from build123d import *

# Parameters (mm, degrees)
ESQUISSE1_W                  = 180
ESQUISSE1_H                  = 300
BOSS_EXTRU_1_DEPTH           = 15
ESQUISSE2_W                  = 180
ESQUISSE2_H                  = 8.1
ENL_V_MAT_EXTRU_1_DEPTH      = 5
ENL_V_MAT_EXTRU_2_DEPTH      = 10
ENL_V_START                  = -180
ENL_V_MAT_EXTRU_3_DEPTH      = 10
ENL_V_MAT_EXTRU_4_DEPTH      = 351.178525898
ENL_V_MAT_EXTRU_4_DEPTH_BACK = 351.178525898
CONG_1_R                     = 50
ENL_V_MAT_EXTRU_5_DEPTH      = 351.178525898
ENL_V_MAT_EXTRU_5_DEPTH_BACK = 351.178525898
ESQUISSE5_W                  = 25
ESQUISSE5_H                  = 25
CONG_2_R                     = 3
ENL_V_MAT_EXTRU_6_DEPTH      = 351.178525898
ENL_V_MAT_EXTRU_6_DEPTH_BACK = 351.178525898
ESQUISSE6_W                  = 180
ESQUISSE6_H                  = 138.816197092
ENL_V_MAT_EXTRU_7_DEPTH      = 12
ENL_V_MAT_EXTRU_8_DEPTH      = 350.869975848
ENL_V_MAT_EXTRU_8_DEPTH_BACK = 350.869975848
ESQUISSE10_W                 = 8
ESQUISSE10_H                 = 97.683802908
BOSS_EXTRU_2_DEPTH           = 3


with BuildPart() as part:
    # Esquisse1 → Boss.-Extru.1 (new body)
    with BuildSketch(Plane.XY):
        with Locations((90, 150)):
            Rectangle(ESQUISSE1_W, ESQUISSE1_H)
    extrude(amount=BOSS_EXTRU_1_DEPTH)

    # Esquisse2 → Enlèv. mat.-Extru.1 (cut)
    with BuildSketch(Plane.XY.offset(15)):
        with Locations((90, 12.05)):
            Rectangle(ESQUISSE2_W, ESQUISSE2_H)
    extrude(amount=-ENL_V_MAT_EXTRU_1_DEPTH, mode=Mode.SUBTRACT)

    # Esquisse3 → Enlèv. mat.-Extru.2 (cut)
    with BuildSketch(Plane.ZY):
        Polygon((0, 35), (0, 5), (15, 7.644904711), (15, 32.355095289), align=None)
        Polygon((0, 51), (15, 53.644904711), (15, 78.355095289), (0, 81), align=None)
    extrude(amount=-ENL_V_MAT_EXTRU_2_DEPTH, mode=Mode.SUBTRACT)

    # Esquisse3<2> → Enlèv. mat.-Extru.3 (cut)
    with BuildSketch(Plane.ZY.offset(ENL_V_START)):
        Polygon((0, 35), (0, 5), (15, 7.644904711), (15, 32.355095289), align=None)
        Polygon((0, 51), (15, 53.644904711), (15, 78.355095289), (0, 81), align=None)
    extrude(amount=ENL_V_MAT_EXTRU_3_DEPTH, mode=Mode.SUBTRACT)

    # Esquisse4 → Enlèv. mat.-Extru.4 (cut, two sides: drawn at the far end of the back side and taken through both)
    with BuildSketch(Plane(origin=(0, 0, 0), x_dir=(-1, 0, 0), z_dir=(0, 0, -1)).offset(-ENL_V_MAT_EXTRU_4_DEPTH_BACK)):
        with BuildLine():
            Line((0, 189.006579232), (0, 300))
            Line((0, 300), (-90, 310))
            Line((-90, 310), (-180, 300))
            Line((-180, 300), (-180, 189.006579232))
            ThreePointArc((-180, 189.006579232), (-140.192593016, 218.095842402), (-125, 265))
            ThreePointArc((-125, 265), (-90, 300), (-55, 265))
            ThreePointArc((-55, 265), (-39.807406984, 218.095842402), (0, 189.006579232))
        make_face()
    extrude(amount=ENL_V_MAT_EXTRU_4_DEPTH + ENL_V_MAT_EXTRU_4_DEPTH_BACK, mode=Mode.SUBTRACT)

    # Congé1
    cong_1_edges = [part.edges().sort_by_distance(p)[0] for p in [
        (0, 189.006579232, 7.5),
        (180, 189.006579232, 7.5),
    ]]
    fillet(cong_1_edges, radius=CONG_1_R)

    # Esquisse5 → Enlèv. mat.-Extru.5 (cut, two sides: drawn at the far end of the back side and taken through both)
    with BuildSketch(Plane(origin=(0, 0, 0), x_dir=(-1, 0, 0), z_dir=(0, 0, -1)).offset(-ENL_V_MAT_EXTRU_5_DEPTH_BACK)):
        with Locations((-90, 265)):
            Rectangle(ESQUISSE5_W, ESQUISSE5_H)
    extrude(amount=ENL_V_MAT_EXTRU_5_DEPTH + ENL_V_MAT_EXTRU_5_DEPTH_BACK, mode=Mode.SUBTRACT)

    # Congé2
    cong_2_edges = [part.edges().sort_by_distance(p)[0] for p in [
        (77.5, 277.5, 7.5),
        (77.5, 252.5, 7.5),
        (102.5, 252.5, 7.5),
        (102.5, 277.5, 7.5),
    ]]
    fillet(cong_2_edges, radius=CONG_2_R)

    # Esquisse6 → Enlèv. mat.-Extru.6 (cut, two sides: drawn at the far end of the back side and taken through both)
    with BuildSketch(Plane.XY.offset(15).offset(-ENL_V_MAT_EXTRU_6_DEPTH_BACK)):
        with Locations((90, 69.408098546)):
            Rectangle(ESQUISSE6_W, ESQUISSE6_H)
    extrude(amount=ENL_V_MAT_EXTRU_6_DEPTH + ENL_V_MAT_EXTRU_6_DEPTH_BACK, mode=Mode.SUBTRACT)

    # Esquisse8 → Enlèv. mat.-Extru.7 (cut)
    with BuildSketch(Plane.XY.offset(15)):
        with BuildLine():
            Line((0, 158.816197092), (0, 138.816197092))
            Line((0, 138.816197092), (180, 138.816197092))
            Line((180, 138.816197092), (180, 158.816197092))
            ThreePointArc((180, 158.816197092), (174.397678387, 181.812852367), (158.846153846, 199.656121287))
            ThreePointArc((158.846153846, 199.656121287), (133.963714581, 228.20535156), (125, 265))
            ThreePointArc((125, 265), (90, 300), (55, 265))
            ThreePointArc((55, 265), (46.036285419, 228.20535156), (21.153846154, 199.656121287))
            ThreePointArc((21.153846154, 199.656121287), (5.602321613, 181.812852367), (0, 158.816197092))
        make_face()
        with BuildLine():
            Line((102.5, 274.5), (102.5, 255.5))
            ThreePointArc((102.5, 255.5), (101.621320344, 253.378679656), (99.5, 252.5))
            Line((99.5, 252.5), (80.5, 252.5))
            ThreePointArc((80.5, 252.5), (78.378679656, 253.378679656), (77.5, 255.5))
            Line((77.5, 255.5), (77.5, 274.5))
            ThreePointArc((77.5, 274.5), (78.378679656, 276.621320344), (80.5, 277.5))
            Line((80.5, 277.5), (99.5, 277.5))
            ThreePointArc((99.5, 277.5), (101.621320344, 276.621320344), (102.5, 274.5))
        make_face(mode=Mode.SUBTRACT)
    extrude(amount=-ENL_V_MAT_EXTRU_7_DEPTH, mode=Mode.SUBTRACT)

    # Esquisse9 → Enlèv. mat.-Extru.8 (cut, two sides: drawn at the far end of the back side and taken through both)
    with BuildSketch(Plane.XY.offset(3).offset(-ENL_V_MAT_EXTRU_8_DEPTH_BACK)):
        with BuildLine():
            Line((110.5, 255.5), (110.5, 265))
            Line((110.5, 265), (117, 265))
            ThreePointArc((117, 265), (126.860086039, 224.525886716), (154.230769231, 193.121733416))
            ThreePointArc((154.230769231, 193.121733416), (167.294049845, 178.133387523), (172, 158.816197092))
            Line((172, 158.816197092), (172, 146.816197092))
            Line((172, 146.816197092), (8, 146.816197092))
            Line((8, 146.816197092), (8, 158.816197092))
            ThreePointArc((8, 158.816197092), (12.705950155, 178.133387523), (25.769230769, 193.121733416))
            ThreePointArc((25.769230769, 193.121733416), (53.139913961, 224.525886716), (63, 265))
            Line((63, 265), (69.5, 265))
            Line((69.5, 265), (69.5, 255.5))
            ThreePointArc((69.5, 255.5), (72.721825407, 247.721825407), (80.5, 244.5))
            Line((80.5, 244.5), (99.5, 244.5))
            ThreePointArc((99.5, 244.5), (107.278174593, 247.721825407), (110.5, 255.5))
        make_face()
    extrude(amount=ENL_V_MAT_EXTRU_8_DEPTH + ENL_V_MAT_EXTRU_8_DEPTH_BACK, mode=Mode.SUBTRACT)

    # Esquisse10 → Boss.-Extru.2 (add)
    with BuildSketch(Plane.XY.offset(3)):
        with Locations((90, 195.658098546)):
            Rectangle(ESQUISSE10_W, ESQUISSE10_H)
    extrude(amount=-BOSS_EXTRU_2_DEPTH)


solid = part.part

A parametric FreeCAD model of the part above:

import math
import FreeCAD as App
import Part
import Sketcher
from FreeCAD import Vector
Q = App.Units.Quantity


def edges_at(feature, points):
    """Names of the edges that pass closest to the given points."""
    edges = feature.Shape.Edges
    near = lambda p: min(range(len(edges)), key=lambda i: edges[i].distToShape(Part.Vertex(*p))[0])
    return sorted({f"Edge{near(p) + 1}" for p in points})


def add_polygon(sketch, points):
    """Adds a closed chain of lines whose ends are joined by coincident constraints."""
    first, n = sketch.GeometryCount, len(points)
    for a, b in zip(points, points[1:] + points[:1]):
        sketch.addGeometry(Part.LineSegment(App.Vector(*a, 0), App.Vector(*b, 0)), False)
    for i in range(n):
        sketch.addConstraint(Sketcher.Constraint("Coincident", first + i, 2, first + (i + 1) % n, 1))

doc = App.newDocument("Part")
body = doc.addObject("PartDesign::Body", "Body")

# Sketch on XY plane
sketch1 = body.newObject("Sketcher::SketchObject", "Sketch")
sketch1.AttachmentSupport = (doc.getObject("XY_Plane"), [""])
sketch1.MapMode = "FlatFace"
add_polygon(sketch1, [(0, 300), (0, 0), (180, 0), (180, 300)])  # lines 0-3
sketch1.addConstraint([
    Sketcher.Constraint("Vertical", 0),
    Sketcher.Constraint("Horizontal", 1),
    Sketcher.Constraint("Vertical", 2),
    Sketcher.Constraint("Horizontal", 3),
    Sketcher.Constraint("Coincident", 0, 2, -1, 1),
    Sketcher.Constraint("DistanceX", 1, 1, 1, 2, Q("180 mm")),
    Sketcher.Constraint("DistanceY", 0, 2, 0, 1, Q("300 mm")),
])
pad1 = body.newObject("PartDesign::Pad", "Pad")
pad1.Profile = sketch1
pad1.Length = 15

# Sketch on XY plane
sketch2 = body.newObject("Sketcher::SketchObject", "Sketch001")
sketch2.AttachmentSupport = (doc.getObject("XY_Plane"), [""])
sketch2.MapMode = "FlatFace"
sketch2.AttachmentOffset = App.Placement(Vector(0, 0, 15), App.Rotation())
add_polygon(sketch2, [(0, 16), (0, 8), (180, 8), (180, 16)])  # lines 0-3
sketch2.addConstraint([
    Sketcher.Constraint("Vertical", 0),
    Sketcher.Constraint("Horizontal", 1),
    Sketcher.Constraint("Vertical", 2),
    Sketcher.Constraint("Horizontal", 3),
    Sketcher.Constraint("PointOnObject", 0, 2, -2),
    Sketcher.Constraint("DistanceX", 1, 1, 1, 2, Q("180 mm")),
    Sketcher.Constraint("DistanceY", 0, 2, 0, 1, Q("8.1 mm")),
    Sketcher.Constraint("DistanceY", -1, 1, 0, 2, Q("8 mm")),
])
pocket1 = body.newObject("PartDesign::Pocket", "Pocket")
pocket1.Profile = sketch2
pocket1.Length = 5

# Sketch on YZ plane
sketch3 = body.newObject("Sketcher::SketchObject", "Sketch002")
sketch3.AttachmentSupport = (doc.getObject("YZ_Plane"), [""])
sketch3.MapMode = "FlatFace"
add_polygon(sketch3, [(35, 0), (5, 0), (8, 15), (32, 15)])  # lines 0-3
add_polygon(sketch3, [(51, 0), (54, 15), (78, 15), (81, 0)])  # lines 4-7
sketch3.addConstraint([
    Sketcher.Constraint("Horizontal", 0),
    Sketcher.Constraint("Horizontal", 2),
    Sketcher.Constraint("Horizontal", 5),
    Sketcher.Constraint("Horizontal", 7),
    Sketcher.Constraint("PointOnObject", 0, 2, -1),
    Sketcher.Constraint("PointOnObject", 6, 2, -1),
    Sketcher.Constraint("Parallel", 1, 4),
    Sketcher.Constraint("Parallel", 3, 6),
    Sketcher.Constraint("Horizontal", 2, 2, 4, 2),
    Sketcher.Constraint("Equal", 2, 5),
    Sketcher.Constraint("Equal", 1, 3),
    Sketcher.Constraint("DistanceX", 0, 2, 0, 1, Q("30 mm")),
    Sketcher.Constraint("Angle", 1, Q("80 deg")),
    Sketcher.Constraint("DistanceX", -1, 1, 0, 2, Q("5 mm")),
    Sketcher.Constraint("DistanceY", -1, 1, 1, 2, Q("15 mm")),
    Sketcher.Constraint("DistanceX", -1, 1, 6, 2, Q("81 mm")),
])
pocket2 = body.newObject("PartDesign::Pocket", "Pocket001")
pocket2.Profile = sketch3
pocket2.Length = 10
pocket2.Reversed = True

# Sketch on YZ plane
sketch4 = body.newObject("Sketcher::SketchObject", "Sketch003")
sketch4.AttachmentSupport = (doc.getObject("YZ_Plane"), [""])
sketch4.MapMode = "FlatFace"
sketch4.AttachmentOffset = App.Placement(Vector(0, 0, 180), App.Rotation())
add_polygon(sketch4, [(35, 0), (5, 0), (8, 15), (32, 15)])  # lines 0-3
add_polygon(sketch4, [(51, 0), (54, 15), (78, 15), (81, 0)])  # lines 4-7
sketch4.addConstraint([
    Sketcher.Constraint("Horizontal", 0),
    Sketcher.Constraint("Horizontal", 2),
    Sketcher.Constraint("Horizontal", 5),
    Sketcher.Constraint("Horizontal", 7),
    Sketcher.Constraint("PointOnObject", 0, 2, -1),
    Sketcher.Constraint("PointOnObject", 6, 2, -1),
    Sketcher.Constraint("Parallel", 1, 4),
    Sketcher.Constraint("Parallel", 3, 6),
    Sketcher.Constraint("Horizontal", 2, 2, 4, 2),
    Sketcher.Constraint("Equal", 2, 5),
    Sketcher.Constraint("Equal", 1, 3),
    Sketcher.Constraint("DistanceX", 0, 2, 0, 1, Q("30 mm")),
    Sketcher.Constraint("Angle", 1, Q("80 deg")),
    Sketcher.Constraint("DistanceX", -1, 1, 0, 2, Q("5 mm")),
    Sketcher.Constraint("DistanceY", -1, 1, 1, 2, Q("15 mm")),
    Sketcher.Constraint("DistanceX", -1, 1, 6, 2, Q("81 mm")),
])
pocket3 = body.newObject("PartDesign::Pocket", "Pocket002")
pocket3.Profile = sketch4
pocket3.Length = 10

# Sketch on XY plane
sketch5 = body.newObject("Sketcher::SketchObject", "Sketch004")
sketch5.AttachmentSupport = (doc.getObject("XY_Plane"), [""])
sketch5.MapMode = "FlatFace"
sketch5.addGeometry([
    Part.LineSegment(Vector(0, 189, 0), Vector(0, 300, 0)),  # 0
    Part.LineSegment(Vector(0, 300, 0), Vector(90, 310, 0)),  # 1
    Part.LineSegment(Vector(90, 310, 0), Vector(180, 300, 0)),  # 2
    Part.LineSegment(Vector(180, 300, 0), Vector(180, 189, 0)),  # 3
    Part.ArcOfCircle(Part.Circle(Vector(205, 265, 0), Vector(0, 0, 1), 80), math.radians(-180), math.radians(-108)),  # 4
    Part.ArcOfCircle(Part.Circle(Vector(90, 265, 0), Vector(0, 0, 1), 35), math.radians(0), math.radians(180)),  # 5
    Part.ArcOfCircle(Part.Circle(Vector(-25, 265, 0), Vector(0, 0, 1), 80), math.radians(-72), math.radians(0)),  # 6
], False)
sketch5.addConstraint([
    Sketcher.Constraint("Coincident", 0, 2, 1, 1),
    Sketcher.Constraint("Coincident", 1, 2, 2, 1),
    Sketcher.Constraint("Coincident", 2, 2, 3, 1),
    Sketcher.Constraint("Coincident", 3, 2, 4, 2),
    Sketcher.Constraint("Tangent", 4, 1, 5, 1),
    Sketcher.Constraint("Tangent", 5, 2, 6, 2),
    Sketcher.Constraint("Coincident", 6, 1, 0, 1),
    Sketcher.Constraint("Vertical", 0),
    Sketcher.Constraint("Vertical", 3),
    Sketcher.Constraint("Equal", 4, 6),
    Sketcher.Constraint("PointOnObject", 0, 2, -2),
    Sketcher.Constraint("Horizontal", 4, 3, 5, 3),
    Sketcher.Constraint("Horizontal", 5, 3, 6, 3),
    Sketcher.Constraint("Horizontal", 0, 2, 2, 2),
    Sketcher.Constraint("Horizontal", 3, 2, 6, 1),
    Sketcher.Constraint("Vertical", 5, 3, 1, 2),
    Sketcher.Constraint("Radius", 4, Q("80 mm")),
    Sketcher.Constraint("Radius", 5, Q("35 mm")),
    Sketcher.Constraint("DistanceX", -1, 1, 4, 3, Q("205 mm")),
    Sketcher.Constraint("DistanceY", -1, 1, 4, 3, Q("265 mm")),
    Sketcher.Constraint("DistanceY", -1, 1, 0, 2, Q("300 mm")),
    Sketcher.Constraint("DistanceY", -1, 1, 1, 2, Q("310 mm")),
])
pocket4 = body.newObject("PartDesign::Pocket", "Pocket003")
pocket4.Profile = sketch5
pocket4.Type = "ThroughAll"
pocket4.Midplane = True
doc.recompute()

fillet = body.newObject("PartDesign::Fillet", "Fillet")
fillet.Base = (pocket4, edges_at(pocket4, [(0, 189.007, 7.5), (180, 189.007, 7.5)]))
fillet.Radius = 50

# Sketch on XY plane
sketch6 = body.newObject("Sketcher::SketchObject", "Sketch005")
sketch6.AttachmentSupport = (doc.getObject("XY_Plane"), [""])
sketch6.MapMode = "FlatFace"
add_polygon(sketch6, [(102, 278), (102, 252), (78, 252), (78, 278)])  # lines 0-3
sketch6.addConstraint([
    Sketcher.Constraint("Vertical", 0),
    Sketcher.Constraint("Horizontal", 1),
    Sketcher.Constraint("Vertical", 2),
    Sketcher.Constraint("Horizontal", 3),
    Sketcher.Constraint("Equal", 3, 0),
    Sketcher.Constraint("DistanceX", 1, 2, 1, 1, Q("25 mm")),
    Sketcher.Constraint("DistanceX", -1, 1, 0, 2, Q("102.5 mm")),
    Sketcher.Constraint("DistanceY", -1, 1, 0, 2, Q("252.5 mm")),
])
pocket5 = body.newObject("PartDesign::Pocket", "Pocket004")
pocket5.Profile = sketch6
pocket5.Type = "ThroughAll"
pocket5.Midplane = True
doc.recompute()

fillet2 = body.newObject("PartDesign::Fillet", "Fillet001")
fillet2.Base = (pocket5, edges_at(pocket5, [
    (77.5, 277.5, 7.5),
    (77.5, 252.5, 7.5),
    (102.5, 252.5, 7.5),
    (102.5, 277.5, 7.5),
]))
fillet2.Radius = 3

# Sketch on XY plane
sketch7 = body.newObject("Sketcher::SketchObject", "Sketch006")
sketch7.AttachmentSupport = (doc.getObject("XY_Plane"), [""])
sketch7.MapMode = "FlatFace"
sketch7.AttachmentOffset = App.Placement(Vector(0, 0, 15), App.Rotation())
add_polygon(sketch7, [(0, 139), (0, 0), (180, 0), (180, 139)])  # lines 0-3
sketch7.addConstraint([
    Sketcher.Constraint("Vertical", 0),
    Sketcher.Constraint("Horizontal", 1),
    Sketcher.Constraint("Vertical", 2),
    Sketcher.Constraint("Horizontal", 3),
    Sketcher.Constraint("Coincident", 0, 2, -1, 1),
    Sketcher.Constraint("DistanceX", 1, 1, 1, 2, Q("180 mm")),
    Sketcher.Constraint("DistanceY", 0, 2, 0, 1, Q("138.816197 mm")),
])
pocket6 = body.newObject("PartDesign::Pocket", "Pocket005")
pocket6.Profile = sketch7
pocket6.Type = "ThroughAll"
pocket6.Midplane = True

# Sketch on XY plane
sketch8 = body.newObject("Sketcher::SketchObject", "Sketch007")
sketch8.AttachmentSupport = (doc.getObject("XY_Plane"), [""])
sketch8.MapMode = "FlatFace"
sketch8.AttachmentOffset = App.Placement(Vector(0, 0, 15), App.Rotation())
sketch8.addGeometry([
    Part.LineSegment(Vector(0, 158.8, 0), Vector(0, 138.8, 0)),  # 0
    Part.LineSegment(Vector(0, 138.8, 0), Vector(180, 138.8, 0)),  # 1
    Part.LineSegment(Vector(180, 138.8, 0), Vector(180, 158.8, 0)),  # 2
    Part.ArcOfCircle(Part.Circle(Vector(130, 158.8, 0), Vector(0, 0, 1), 50), math.radians(0), math.radians(55)),  # 3
    Part.ArcOfCircle(Part.Circle(Vector(205, 265, 0), Vector(0, 0, 1), 80), math.radians(-180), math.radians(-125)),  # 4
    Part.ArcOfCircle(Part.Circle(Vector(90, 265, 0), Vector(0, 0, 1), 35), math.radians(0), math.radians(180)),  # 5
    Part.ArcOfCircle(Part.Circle(Vector(-25, 265, 0), Vector(0, 0, 1), 80), math.radians(-55), math.radians(0)),  # 6
    Part.ArcOfCircle(Part.Circle(Vector(50, 158.8, 0), Vector(0, 0, 1), 50), math.radians(125), math.radians(180)),  # 7
    Part.ArcOfCircle(Part.Circle(Vector(99.5, 274.5, 0), Vector(0, 0, 1), 3), math.radians(0), math.radians(90)),  # 8
    Part.LineSegment(Vector(102.5, 274.5, 0), Vector(102.5, 255.5, 0)),  # 9
    Part.ArcOfCircle(Part.Circle(Vector(99.5, 255.5, 0), Vector(0, 0, 1), 3), math.radians(-90), math.radians(0)),  # 10
    Part.LineSegment(Vector(99.5, 252.5, 0), Vector(80.5, 252.5, 0)),  # 11
    Part.ArcOfCircle(Part.Circle(Vector(80.5, 255.5, 0), Vector(0, 0, 1), 3), math.radians(180), math.radians(270)),  # 12
    Part.LineSegment(Vector(77.5, 255.5, 0), Vector(77.5, 274.5, 0)),  # 13
    Part.ArcOfCircle(Part.Circle(Vector(80.5, 274.5, 0), Vector(0, 0, 1), 3), math.radians(90), math.radians(180)),  # 14
    Part.LineSegment(Vector(80.5, 277.5, 0), Vector(99.5, 277.5, 0)),  # 15
], False)
sketch8.addConstraint([
    Sketcher.Constraint("Coincident", 0, 2, 1, 1),
    Sketcher.Constraint("Coincident", 1, 2, 2, 1),
    Sketcher.Constraint("Tangent", 2, 2, 3, 1),
    Sketcher.Constraint("Tangent", 3, 2, 4, 2),
    Sketcher.Constraint("Tangent", 4, 1, 5, 1),
    Sketcher.Constraint("Tangent", 5, 2, 6, 2),
    Sketcher.Constraint("Tangent", 6, 1, 7, 1),
    Sketcher.Constraint("Tangent", 7, 2, 0, 1),
    Sketcher.Constraint("Tangent", 8, 1, 9, 1),
    Sketcher.Constraint("Tangent", 9, 2, 10, 2),
    Sketcher.Constraint("Tangent", 10, 1, 11, 1),
    Sketcher.Constraint("Tangent", 11, 2, 12, 2),
    Sketcher.Constraint("Tangent", 12, 1, 13, 1),
    Sketcher.Constraint("Tangent", 13, 2, 14, 2),
    Sketcher.Constraint("Tangent", 14, 1, 15, 1),
    Sketcher.Constraint("Tangent", 15, 2, 8, 2),
    Sketcher.Constraint("Vertical", 0),
    Sketcher.Constraint("Horizontal", 1),
    Sketcher.Constraint("Vertical", 2),
    Sketcher.Constraint("Vertical", 9),
    Sketcher.Constraint("Horizontal", 11),
    Sketcher.Constraint("Vertical", 13),
    Sketcher.Constraint("Horizontal", 15),
    Sketcher.Constraint("Equal", 4, 6),
    Sketcher.Constraint("Equal", 3, 7),
    Sketcher.Constraint("Equal", 8, 10),
    Sketcher.Constraint("Equal", 10, 12),
    Sketcher.Constraint("Equal", 12, 14),
    Sketcher.Constraint("PointOnObject", 0, 2, -2),
    Sketcher.Constraint("Horizontal", 4, 3, 5, 3),
    Sketcher.Constraint("Horizontal", 5, 3, 6, 3),
    Sketcher.Constraint("Horizontal", 3, 3, 7, 3),
    Sketcher.Constraint("Equal", 15, 9),
    Sketcher.Constraint("Radius", 3, Q("50 mm")),
    Sketcher.Constraint("Radius", 4, Q("80 mm")),
    Sketcher.Constraint("Radius", 5, Q("35 mm")),
    Sketcher.Constraint("Radius", 8, Q("3 mm")),
    Sketcher.Constraint("DistanceX", 1, 1, 1, 2, Q("180 mm")),
    Sketcher.Constraint("DistanceX", 11, 2, 11, 1, Q("19 mm")),
    Sketcher.Constraint("DistanceY", 0, 2, 0, 1, Q("20 mm")),
    Sketcher.Constraint("DistanceY", -1, 1, 4, 3, Q("265 mm")),
    Sketcher.Constraint("DistanceX", -1, 1, 8, 3, Q("99.5 mm")),
    Sketcher.Constraint("DistanceY", -1, 1, 8, 3, Q("274.5 mm")),
])
pocket7 = body.newObject("PartDesign::Pocket", "Pocket006")
pocket7.Profile = sketch8
pocket7.Length = 12

# Sketch on XY plane
sketch9 = body.newObject("Sketcher::SketchObject", "Sketch008")
sketch9.AttachmentSupport = (doc.getObject("XY_Plane"), [""])
sketch9.MapMode = "FlatFace"
sketch9.AttachmentOffset = App.Placement(Vector(0, 0, 3), App.Rotation())
sketch9.addGeometry([
    Part.LineSegment(Vector(110, 265, 0), Vector(110, 256, 0)),  # 0
    Part.ArcOfCircle(Part.Circle(Vector(100, 256, 0), Vector(0, 0, 1), 11), math.radians(-90), math.radians(0)),  # 1
    Part.LineSegment(Vector(100, 244, 0), Vector(80, 244, 0)),  # 2
    Part.ArcOfCircle(Part.Circle(Vector(80, 256, 0), Vector(0, 0, 1), 11), math.radians(180), math.radians(270)),  # 3
    Part.LineSegment(Vector(70, 256, 0), Vector(70, 265, 0)),  # 4
    Part.LineSegment(Vector(70, 265, 0), Vector(63, 265, 0)),  # 5
    Part.ArcOfCircle(Part.Circle(Vector(-25, 265, 0), Vector(0, 0, 1), 88), math.radians(-55), math.radians(0)),  # 6
    Part.ArcOfCircle(Part.Circle(Vector(50, 159, 0), Vector(0, 0, 1), 42), math.radians(125), math.radians(180)),  # 7
    Part.LineSegment(Vector(8, 159, 0), Vector(8, 147, 0)),  # 8
    Part.LineSegment(Vector(8, 147, 0), Vector(172, 147, 0)),  # 9
    Part.LineSegment(Vector(172, 147, 0), Vector(172, 159, 0)),  # 10
    Part.ArcOfCircle(Part.Circle(Vector(130, 159, 0), Vector(0, 0, 1), 42), math.radians(0), math.radians(55)),  # 11
    Part.ArcOfCircle(Part.Circle(Vector(205, 265, 0), Vector(0, 0, 1), 88), math.radians(-180), math.radians(-125)),  # 12
    Part.LineSegment(Vector(117, 265, 0), Vector(110, 265, 0)),  # 13
], False)
sketch9.addConstraint([
    Sketcher.Constraint("Tangent", 0, 2, 1, 2),
    Sketcher.Constraint("Tangent", 1, 1, 2, 1),
    Sketcher.Constraint("Tangent", 2, 2, 3, 2),
    Sketcher.Constraint("Tangent", 3, 1, 4, 1),
    Sketcher.Constraint("Coincident", 4, 2, 5, 1),
    Sketcher.Constraint("Coincident", 5, 2, 6, 2),
    Sketcher.Constraint("Tangent", 6, 1, 7, 1),
    Sketcher.Constraint("Tangent", 7, 2, 8, 1),
    Sketcher.Constraint("Coincident", 8, 2, 9, 1),
    Sketcher.Constraint("Coincident", 9, 2, 10, 1),
    Sketcher.Constraint("Tangent", 10, 2, 11, 1),
    Sketcher.Constraint("Tangent", 11, 2, 12, 2),
    Sketcher.Constraint("Coincident", 12, 1, 13, 1),
    Sketcher.Constraint("Coincident", 13, 2, 0, 1),
    Sketcher.Constraint("Vertical", 0),
    Sketcher.Constraint("Horizontal", 2),
    Sketcher.Constraint("Vertical", 4),
    Sketcher.Constraint("Horizontal", 5),
    Sketcher.Constraint("Vertical", 8),
    Sketcher.Constraint("Horizontal", 9),
    Sketcher.Constraint("Vertical", 10),
    Sketcher.Constraint("Horizontal", 13),
    Sketcher.Constraint("Equal", 1, 3),
    Sketcher.Constraint("Equal", 7, 11),
    Sketcher.Constraint("Equal", 6, 12),
    Sketcher.Constraint("Horizontal", 7, 3, 11, 3),
    Sketcher.Constraint("Horizontal", 6, 3, 12, 3),
    Sketcher.Constraint("Horizontal", 12, 3, 4, 2),
    Sketcher.Constraint("Horizontal", 5, 2, 12, 1),
    Sketcher.Constraint("Equal", 5, 13),
    Sketcher.Constraint("Radius", 1, Q("11 mm")),
    Sketcher.Constraint("Radius", 6, Q("88 mm")),
    Sketcher.Constraint("Radius", 7, Q("42 mm")),
    Sketcher.Constraint("DistanceX", 2, 2, 2, 1, Q("19 mm")),
    Sketcher.Constraint("DistanceX", 9, 1, 9, 2, Q("164 mm")),
    Sketcher.Constraint("DistanceY", 8, 2, 8, 1, Q("12 mm")),
    Sketcher.Constraint("DistanceX", 5, 2, 5, 1, Q("6.5 mm")),
    Sketcher.Constraint("DistanceY", 0, 2, 0, 1, Q("9.5 mm")),
    Sketcher.Constraint("DistanceX", 6, 3, -1, 1, Q("25 mm")),
    Sketcher.Constraint("DistanceY", -1, 1, 6, 3, Q("265 mm")),
])
pocket8 = body.newObject("PartDesign::Pocket", "Pocket007")
pocket8.Profile = sketch9
pocket8.Type = "ThroughAll"
pocket8.Midplane = True

# Sketch on XY plane
sketch10 = body.newObject("Sketcher::SketchObject", "Sketch009")
sketch10.AttachmentSupport = (doc.getObject("XY_Plane"), [""])
sketch10.MapMode = "FlatFace"
sketch10.AttachmentOffset = App.Placement(Vector(0, 0, 3), App.Rotation())
add_polygon(sketch10, [(86, 244), (86, 147), (94, 147), (94, 244)])  # lines 0-3
sketch10.addConstraint([
    Sketcher.Constraint("Vertical", 0),
    Sketcher.Constraint("Horizontal", 1),
    Sketcher.Constraint("Vertical", 2),
    Sketcher.Constraint("Horizontal", 3),
    Sketcher.Constraint("DistanceX", 1, 1, 1, 2, Q("8 mm")),
    Sketcher.Constraint("DistanceX", -1, 1, 0, 2, Q("86 mm")),
    Sketcher.Constraint("DistanceY", -1, 1, 2, 2, Q("244.5 mm")),
    Sketcher.Constraint("DistanceY", 0, 2, 0, 1, Q("97.683803 mm")),
])
pad2 = body.newObject("PartDesign::Pad", "Pad001")
pad2.Profile = sketch10
pad2.Length = 3
pad2.Reversed = True

doc.recompute()
